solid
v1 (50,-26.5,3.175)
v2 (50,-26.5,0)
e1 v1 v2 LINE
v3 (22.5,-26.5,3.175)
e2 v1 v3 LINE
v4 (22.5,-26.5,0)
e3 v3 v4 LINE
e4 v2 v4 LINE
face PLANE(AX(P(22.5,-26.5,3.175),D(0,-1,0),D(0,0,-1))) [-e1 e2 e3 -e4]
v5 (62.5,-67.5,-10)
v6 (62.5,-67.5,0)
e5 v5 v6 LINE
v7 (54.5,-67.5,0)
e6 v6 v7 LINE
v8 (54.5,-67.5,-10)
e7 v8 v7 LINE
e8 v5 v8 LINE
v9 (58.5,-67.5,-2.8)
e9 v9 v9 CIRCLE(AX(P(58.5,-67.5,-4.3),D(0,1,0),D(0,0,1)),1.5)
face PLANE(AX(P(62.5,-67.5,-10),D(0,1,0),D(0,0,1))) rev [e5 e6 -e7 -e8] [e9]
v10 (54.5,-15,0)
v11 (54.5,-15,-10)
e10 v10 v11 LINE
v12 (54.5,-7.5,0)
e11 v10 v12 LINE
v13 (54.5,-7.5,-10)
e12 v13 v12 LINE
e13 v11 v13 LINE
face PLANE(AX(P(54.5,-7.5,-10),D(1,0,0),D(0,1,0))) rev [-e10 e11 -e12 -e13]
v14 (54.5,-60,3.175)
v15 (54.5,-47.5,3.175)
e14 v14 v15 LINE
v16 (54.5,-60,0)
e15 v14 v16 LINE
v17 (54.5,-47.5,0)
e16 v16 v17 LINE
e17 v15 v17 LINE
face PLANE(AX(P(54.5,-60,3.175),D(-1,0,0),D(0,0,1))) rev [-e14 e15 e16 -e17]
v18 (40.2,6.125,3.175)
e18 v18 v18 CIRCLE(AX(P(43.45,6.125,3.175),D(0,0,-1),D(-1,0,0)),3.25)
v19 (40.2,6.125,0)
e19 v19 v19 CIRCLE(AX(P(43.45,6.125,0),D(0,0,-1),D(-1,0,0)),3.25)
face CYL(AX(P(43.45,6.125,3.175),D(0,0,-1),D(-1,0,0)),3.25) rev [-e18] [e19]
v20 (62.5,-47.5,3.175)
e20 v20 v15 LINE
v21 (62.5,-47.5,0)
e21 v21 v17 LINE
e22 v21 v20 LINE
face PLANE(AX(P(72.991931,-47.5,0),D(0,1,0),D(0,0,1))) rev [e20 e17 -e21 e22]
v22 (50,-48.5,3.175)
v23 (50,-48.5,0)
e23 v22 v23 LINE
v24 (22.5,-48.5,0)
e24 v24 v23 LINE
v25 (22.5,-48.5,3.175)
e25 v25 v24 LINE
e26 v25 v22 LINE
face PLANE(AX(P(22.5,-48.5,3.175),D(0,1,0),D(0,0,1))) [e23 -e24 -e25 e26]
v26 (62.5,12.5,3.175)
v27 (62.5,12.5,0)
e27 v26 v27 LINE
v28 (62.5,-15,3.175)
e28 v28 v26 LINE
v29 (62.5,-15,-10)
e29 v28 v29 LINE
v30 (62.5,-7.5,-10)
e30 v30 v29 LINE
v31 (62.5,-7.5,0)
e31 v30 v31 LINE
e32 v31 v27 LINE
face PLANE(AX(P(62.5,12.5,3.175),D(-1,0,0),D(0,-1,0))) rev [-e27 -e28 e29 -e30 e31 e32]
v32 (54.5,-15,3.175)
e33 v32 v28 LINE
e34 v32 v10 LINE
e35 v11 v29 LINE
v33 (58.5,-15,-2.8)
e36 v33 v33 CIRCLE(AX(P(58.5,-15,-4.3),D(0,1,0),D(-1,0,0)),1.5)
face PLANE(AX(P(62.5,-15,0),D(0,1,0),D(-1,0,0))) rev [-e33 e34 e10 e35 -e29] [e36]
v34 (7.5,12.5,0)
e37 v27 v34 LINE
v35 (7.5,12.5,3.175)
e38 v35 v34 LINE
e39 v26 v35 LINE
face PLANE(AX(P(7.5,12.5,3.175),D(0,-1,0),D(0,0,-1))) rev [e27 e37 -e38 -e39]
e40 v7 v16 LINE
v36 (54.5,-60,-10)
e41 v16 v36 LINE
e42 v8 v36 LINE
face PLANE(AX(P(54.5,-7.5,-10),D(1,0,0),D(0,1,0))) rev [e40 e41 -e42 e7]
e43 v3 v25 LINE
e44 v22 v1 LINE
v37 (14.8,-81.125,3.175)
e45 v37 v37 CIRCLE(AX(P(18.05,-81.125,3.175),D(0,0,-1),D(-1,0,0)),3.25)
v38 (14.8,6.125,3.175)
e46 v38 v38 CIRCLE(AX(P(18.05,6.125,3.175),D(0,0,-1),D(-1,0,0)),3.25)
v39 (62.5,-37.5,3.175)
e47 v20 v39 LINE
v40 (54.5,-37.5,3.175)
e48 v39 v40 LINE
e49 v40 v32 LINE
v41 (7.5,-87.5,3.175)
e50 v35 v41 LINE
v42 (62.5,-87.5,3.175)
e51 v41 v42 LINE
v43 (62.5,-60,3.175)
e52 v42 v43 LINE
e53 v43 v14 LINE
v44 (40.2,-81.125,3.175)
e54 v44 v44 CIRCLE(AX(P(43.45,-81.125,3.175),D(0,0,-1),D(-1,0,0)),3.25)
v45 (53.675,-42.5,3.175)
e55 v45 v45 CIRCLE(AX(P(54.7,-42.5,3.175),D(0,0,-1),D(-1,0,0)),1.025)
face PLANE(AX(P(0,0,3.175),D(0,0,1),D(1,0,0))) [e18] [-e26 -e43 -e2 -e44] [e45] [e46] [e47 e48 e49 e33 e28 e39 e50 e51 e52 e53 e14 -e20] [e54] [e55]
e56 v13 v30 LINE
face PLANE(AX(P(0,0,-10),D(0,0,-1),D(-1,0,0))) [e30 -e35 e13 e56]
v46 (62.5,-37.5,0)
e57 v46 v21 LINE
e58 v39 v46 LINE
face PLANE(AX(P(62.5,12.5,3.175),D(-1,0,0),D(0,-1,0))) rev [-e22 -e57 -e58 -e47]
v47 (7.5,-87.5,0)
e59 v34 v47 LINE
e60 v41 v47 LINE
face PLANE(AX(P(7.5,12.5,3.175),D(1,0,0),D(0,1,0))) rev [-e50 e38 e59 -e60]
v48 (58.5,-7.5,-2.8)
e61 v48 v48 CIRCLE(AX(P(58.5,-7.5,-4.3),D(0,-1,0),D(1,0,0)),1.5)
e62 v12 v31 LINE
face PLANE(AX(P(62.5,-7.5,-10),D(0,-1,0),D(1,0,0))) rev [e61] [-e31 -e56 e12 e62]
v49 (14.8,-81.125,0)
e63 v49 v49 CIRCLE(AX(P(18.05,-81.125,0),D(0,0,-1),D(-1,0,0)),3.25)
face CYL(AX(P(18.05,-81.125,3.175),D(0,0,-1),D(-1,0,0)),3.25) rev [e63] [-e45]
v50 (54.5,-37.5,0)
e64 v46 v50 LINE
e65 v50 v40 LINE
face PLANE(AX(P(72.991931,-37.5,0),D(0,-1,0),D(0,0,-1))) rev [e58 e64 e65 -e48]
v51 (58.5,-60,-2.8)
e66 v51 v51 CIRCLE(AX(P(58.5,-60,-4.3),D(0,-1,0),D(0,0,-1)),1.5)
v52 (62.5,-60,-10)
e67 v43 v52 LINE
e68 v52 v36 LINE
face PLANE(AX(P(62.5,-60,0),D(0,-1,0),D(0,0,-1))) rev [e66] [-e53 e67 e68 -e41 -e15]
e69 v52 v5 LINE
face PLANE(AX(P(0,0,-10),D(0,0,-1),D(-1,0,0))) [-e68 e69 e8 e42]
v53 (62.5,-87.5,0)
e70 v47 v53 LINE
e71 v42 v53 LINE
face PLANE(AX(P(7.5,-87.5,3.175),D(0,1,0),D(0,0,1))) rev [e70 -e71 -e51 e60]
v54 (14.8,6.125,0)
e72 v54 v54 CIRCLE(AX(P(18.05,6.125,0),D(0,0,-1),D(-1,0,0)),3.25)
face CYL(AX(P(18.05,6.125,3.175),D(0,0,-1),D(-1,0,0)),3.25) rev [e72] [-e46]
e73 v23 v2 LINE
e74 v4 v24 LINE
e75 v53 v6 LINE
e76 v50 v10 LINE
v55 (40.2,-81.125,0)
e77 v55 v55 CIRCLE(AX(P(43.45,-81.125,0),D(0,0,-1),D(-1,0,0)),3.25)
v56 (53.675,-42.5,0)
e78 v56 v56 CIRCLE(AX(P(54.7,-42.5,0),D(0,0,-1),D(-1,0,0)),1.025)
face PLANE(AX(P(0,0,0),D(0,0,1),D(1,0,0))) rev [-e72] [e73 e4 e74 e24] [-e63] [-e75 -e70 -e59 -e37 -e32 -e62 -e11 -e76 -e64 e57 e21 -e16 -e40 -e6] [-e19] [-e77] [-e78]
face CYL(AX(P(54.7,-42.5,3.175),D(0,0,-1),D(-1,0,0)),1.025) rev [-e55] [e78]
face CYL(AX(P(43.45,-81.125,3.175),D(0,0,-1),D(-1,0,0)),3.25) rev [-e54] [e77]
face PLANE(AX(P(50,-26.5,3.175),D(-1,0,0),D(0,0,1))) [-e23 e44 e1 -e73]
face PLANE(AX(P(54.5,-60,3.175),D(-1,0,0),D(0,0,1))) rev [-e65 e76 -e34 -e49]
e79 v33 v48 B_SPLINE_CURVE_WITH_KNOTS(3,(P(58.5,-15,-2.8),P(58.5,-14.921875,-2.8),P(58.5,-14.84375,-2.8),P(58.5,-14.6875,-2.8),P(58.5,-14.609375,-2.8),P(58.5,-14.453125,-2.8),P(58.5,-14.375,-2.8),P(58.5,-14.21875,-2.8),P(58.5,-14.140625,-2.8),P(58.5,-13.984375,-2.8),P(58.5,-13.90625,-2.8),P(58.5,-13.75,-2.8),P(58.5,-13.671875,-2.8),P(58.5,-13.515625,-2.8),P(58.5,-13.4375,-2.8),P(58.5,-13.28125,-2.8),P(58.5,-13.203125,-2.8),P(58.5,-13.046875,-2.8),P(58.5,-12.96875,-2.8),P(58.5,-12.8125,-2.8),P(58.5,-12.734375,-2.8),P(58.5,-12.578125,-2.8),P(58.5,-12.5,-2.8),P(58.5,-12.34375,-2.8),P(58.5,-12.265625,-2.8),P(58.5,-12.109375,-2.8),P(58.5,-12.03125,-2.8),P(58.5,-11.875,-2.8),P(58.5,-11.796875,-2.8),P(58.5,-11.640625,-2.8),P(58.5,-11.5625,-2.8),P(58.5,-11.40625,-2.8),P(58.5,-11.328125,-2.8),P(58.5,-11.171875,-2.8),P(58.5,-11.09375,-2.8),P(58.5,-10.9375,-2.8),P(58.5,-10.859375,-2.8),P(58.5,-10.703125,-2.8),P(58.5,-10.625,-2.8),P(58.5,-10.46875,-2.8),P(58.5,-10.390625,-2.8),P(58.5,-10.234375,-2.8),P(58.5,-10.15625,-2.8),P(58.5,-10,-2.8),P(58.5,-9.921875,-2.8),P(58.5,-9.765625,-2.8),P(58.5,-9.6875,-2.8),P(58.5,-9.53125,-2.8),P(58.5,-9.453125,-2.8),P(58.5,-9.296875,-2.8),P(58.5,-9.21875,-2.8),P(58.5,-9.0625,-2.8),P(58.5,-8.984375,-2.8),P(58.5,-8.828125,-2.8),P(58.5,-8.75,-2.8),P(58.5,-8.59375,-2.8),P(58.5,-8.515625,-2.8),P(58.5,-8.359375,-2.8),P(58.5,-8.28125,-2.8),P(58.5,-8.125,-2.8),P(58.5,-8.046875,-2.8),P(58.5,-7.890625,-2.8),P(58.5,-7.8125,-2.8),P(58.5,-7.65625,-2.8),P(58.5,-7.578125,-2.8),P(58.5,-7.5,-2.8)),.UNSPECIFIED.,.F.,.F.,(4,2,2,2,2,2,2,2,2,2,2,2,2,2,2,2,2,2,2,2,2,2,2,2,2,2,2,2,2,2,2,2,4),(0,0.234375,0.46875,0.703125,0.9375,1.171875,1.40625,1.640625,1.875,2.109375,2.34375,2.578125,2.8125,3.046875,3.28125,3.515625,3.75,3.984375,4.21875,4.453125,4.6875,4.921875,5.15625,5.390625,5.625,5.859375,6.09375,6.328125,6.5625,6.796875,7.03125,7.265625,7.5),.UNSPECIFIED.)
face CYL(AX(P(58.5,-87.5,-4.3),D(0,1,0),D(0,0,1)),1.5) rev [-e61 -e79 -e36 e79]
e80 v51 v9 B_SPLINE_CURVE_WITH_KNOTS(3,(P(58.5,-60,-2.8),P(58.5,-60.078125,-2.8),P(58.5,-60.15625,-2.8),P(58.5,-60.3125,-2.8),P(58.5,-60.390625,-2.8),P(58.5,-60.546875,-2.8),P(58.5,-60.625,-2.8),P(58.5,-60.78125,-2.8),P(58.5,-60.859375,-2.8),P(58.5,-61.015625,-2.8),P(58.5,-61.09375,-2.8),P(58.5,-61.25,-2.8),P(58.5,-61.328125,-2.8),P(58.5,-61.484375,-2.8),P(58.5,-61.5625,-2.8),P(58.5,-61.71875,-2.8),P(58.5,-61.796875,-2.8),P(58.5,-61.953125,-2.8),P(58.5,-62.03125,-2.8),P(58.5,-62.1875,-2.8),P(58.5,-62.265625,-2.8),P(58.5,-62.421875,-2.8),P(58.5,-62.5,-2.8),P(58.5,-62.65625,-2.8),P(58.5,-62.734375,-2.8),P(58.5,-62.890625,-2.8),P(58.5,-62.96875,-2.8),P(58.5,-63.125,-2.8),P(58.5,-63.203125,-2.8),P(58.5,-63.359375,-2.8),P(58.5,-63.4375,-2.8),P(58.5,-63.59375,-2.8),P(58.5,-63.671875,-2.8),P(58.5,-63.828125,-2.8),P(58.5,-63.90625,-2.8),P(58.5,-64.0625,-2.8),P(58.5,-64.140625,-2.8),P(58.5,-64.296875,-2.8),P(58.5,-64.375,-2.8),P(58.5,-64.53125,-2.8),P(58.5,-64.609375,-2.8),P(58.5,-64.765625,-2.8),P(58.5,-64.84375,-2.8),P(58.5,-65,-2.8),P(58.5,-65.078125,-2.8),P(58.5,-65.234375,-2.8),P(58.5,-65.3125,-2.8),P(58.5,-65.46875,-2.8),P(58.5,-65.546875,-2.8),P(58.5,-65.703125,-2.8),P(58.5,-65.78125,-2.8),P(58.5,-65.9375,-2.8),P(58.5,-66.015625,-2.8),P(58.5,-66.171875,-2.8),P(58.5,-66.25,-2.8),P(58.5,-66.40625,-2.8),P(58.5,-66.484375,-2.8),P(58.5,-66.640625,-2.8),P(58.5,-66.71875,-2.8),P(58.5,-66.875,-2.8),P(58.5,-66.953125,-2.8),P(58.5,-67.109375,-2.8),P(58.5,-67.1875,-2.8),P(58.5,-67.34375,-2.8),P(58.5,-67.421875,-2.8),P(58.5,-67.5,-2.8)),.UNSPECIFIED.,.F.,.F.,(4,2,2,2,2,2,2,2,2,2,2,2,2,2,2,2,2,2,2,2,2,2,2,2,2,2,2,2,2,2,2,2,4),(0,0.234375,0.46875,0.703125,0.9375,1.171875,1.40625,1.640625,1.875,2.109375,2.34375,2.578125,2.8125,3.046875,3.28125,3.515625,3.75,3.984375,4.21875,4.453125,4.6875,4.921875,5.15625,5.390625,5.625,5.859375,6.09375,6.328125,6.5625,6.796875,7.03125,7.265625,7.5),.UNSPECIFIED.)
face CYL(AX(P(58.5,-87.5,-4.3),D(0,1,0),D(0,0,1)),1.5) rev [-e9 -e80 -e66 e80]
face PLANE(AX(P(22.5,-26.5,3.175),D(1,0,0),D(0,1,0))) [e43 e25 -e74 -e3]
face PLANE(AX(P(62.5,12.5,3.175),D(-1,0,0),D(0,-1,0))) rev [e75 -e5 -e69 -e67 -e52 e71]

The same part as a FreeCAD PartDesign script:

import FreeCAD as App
import Part
import Sketcher

V = App.Vector

doc = App.newDocument("Part")
body = doc.addObject("PartDesign::Body", "Body")

# Sketch on XY plane
sketch1 = body.newObject("Sketcher::SketchObject", "Sketch")
sketch1.AttachmentSupport = (doc.getObject("XY_Plane"), [""])
sketch1.MapMode = "FlatFace"
sketch1.addGeometry(Part.LineSegment(V(7.5, 12.5, 0), V(7.5, -87.5, 0)), False)
sketch1.addGeometry(Part.LineSegment(V(7.5, -87.5, 0), V(62.5, -87.5, 0)), False)
sketch1.addGeometry(Part.LineSegment(V(62.5, -87.5, 0), V(62.5, 12.5, 0)), False)
sketch1.addGeometry(Part.LineSegment(V(62.5, 12.5, 0), V(7.5, 12.5, 0)), False)
sketch1.addGeometry(Part.LineSegment(V(50, -48.5, 0), V(22.5, -48.5, 0)), False)
sketch1.addGeometry(Part.LineSegment(V(22.5, -48.5, 0), V(22.5, -26.5, 0)), False)
sketch1.addGeometry(Part.LineSegment(V(22.5, -26.5, 0), V(50, -26.5, 0)), False)
sketch1.addGeometry(Part.LineSegment(V(50, -26.5, 0), V(50, -48.5, 0)), False)
sketch1.addConstraint(Sketcher.Constraint("Coincident", 0, 2, 1, 1))
sketch1.addConstraint(Sketcher.Constraint("Coincident", 1, 2, 2, 1))
sketch1.addConstraint(Sketcher.Constraint("Coincident", 2, 2, 3, 1))
sketch1.addConstraint(Sketcher.Constraint("Coincident", 3, 2, 0, 1))
sketch1.addConstraint(Sketcher.Constraint("Coincident", 4, 2, 5, 1))
sketch1.addConstraint(Sketcher.Constraint("Coincident", 5, 2, 6, 1))
sketch1.addConstraint(Sketcher.Constraint("Coincident", 6, 2, 7, 1))
sketch1.addConstraint(Sketcher.Constraint("Coincident", 7, 2, 4, 1))
sketch1.addConstraint(Sketcher.Constraint("Vertical", 0))
sketch1.addConstraint(Sketcher.Constraint("Horizontal", 1))
sketch1.addConstraint(Sketcher.Constraint("Vertical", 2))
sketch1.addConstraint(Sketcher.Constraint("Horizontal", 3))
sketch1.addConstraint(Sketcher.Constraint("Horizontal", 4))
sketch1.addConstraint(Sketcher.Constraint("Vertical", 5))
sketch1.addConstraint(Sketcher.Constraint("Horizontal", 6))
sketch1.addConstraint(Sketcher.Constraint("Vertical", 7))
sketch1.addConstraint(Sketcher.Constraint("DistanceX", 1, 1, 1, 2, 55.0))
sketch1.addConstraint(Sketcher.Constraint("DistanceY", 0, 2, 0, 1, 100.0))
sketch1.addConstraint(Sketcher.Constraint("DistanceY", 5, 1, 5, 2, 22.0))
sketch1.addConstraint(Sketcher.Constraint("DistanceX", 4, 2, 4, 1, 27.5))
sketch1.addConstraint(Sketcher.Constraint("DistanceX", -1, 1, 6, 2, 50.0))
sketch1.addConstraint(Sketcher.Constraint("DistanceX", 0, 2, 4, 2, 15.0))
sketch1.addConstraint(Sketcher.Constraint("DistanceY", 0, 2, 4, 2, 39.0))
sketch1.addConstraint(Sketcher.Constraint("DistanceY", 0, 2, -1, 1, 87.5))
pad1 = body.newObject("PartDesign::Pad", "Pad")
pad1.Profile = sketch1
pad1.Length = 3.175

# Sketch on XY plane
sketch2 = body.newObject("Sketcher::SketchObject", "Sketch001")
sketch2.AttachmentSupport = (doc.getObject("XY_Plane"), [""])
sketch2.MapMode = "FlatFace"
sketch2.addGeometry(Part.LineSegment(V(62.5, -7.5, 0), V(62.5, -67.5, 0)), False)
sketch2.addGeometry(Part.LineSegment(V(62.5, -67.5, 0), V(54.5, -67.5, 0)), False)
sketch2.addGeometry(Part.LineSegment(V(54.5, -67.5, 0), V(54.5, -7.5, 0)), False)
sketch2.addGeometry(Part.LineSegment(V(54.5, -7.5, 0), V(62.5, -7.5, 0)), False)
sketch2.addConstraint(Sketcher.Constraint("Coincident", 0, 2, 1, 1))
sketch2.addConstraint(Sketcher.Constraint("Coincident", 1, 2, 2, 1))
sketch2.addConstraint(Sketcher.Constraint("Coincident", 2, 2, 3, 1))
sketch2.addConstraint(Sketcher.Constraint("Coincident", 3, 2, 0, 1))
sketch2.addConstraint(Sketcher.Constraint("Vertical", 0))
sketch2.addConstraint(Sketcher.Constraint("Horizontal", 1))
sketch2.addConstraint(Sketcher.Constraint("Vertical", 2))
sketch2.addConstraint(Sketcher.Constraint("Horizontal", 3))
sketch2.addConstraint(Sketcher.Constraint("DistanceX", 1, 2, 1, 1, 8.0))
sketch2.addConstraint(Sketcher.Constraint("DistanceY", 0, 2, 0, 1, 60.0))
sketch2.addConstraint(Sketcher.Constraint("DistanceX", -1, 1, 0, 2, 62.5))
sketch2.addConstraint(Sketcher.Constraint("DistanceY", 0, 2, -1, 1, 67.5))
pad2 = body.newObject("PartDesign::Pad", "Pad001")
pad2.Profile = sketch2
pad2.Length = 10
pad2.Reversed = True

# Sketch on XY plane
sketch3 = body.newObject("Sketcher::SketchObject", "Sketch002")
sketch3.AttachmentSupport = (doc.getObject("XY_Plane"), [""])
sketch3.MapMode = "FlatFace"
sketch3.AttachmentOffset = App.Placement(V(0, 0, -10), App.Rotation())
sketch3.addGeometry(Part.LineSegment(V(62.5, -15, 0), V(62.5, -60, 0)), False)
sketch3.addGeometry(Part.LineSegment(V(62.5, -60, 0), V(54.5, -60, 0)), False)
sketch3.addGeometry(Part.LineSegment(V(54.5, -60, 0), V(54.5, -15, 0)), False)
sketch3.addGeometry(Part.LineSegment(V(54.5, -15, 0), V(62.5, -15, 0)), False)
sketch3.addConstraint(Sketcher.Constraint("Coincident", 0, 2, 1, 1))
sketch3.addConstraint(Sketcher.Constraint("Coincident", 1, 2, 2, 1))
sketch3.addConstraint(Sketcher.Constraint("Coincident", 2, 2, 3, 1))
sketch3.addConstraint(Sketcher.Constraint("Coincident", 3, 2, 0, 1))
sketch3.addConstraint(Sketcher.Constraint("Vertical", 0))
sketch3.addConstraint(Sketcher.Constraint("Horizontal", 1))
sketch3.addConstraint(Sketcher.Constraint("Vertical", 2))
sketch3.addConstraint(Sketcher.Constraint("Horizontal", 3))
sketch3.addConstraint(Sketcher.Constraint("DistanceX", 1, 2, 1, 1, 8.0))
sketch3.addConstraint(Sketcher.Constraint("DistanceY", 0, 2, 0, 1, 45.0))
sketch3.addConstraint(Sketcher.Constraint("DistanceY", 0, 2, -1, 1, 60.0))
sketch3.addConstraint(Sketcher.Constraint("DistanceX", -1, 1, 0, 2, 62.5))
pocket1 = body.newObject("PartDesign::Pocket", "Pocket")
pocket1.Profile = sketch3
pocket1.Length = 10
pocket1.Reversed = True

# Sketch on XZ plane
sketch4 = body.newObject("Sketcher::SketchObject", "Sketch003")
sketch4.AttachmentSupport = (doc.getObject("XZ_Plane"), [""])
sketch4.MapMode = "FlatFace"
sketch4.AttachmentOffset = App.Placement(V(0, 0, -12.5), App.Rotation())
sketch4.addGeometry(Part.Circle(V(58.5, -4.3, 0), V(0, 0, 1), 1.5), False)
sketch4.addConstraint(Sketcher.Constraint("Diameter", 0, 3.0))
sketch4.addConstraint(Sketcher.Constraint("DistanceX", -1, 1, 0, 3, 58.5))
sketch4.addConstraint(Sketcher.Constraint("DistanceY", 0, 3, -1, 1, 4.3))
pocket2 = body.newObject("PartDesign::Pocket", "Pocket001")
pocket2.Profile = sketch4
pocket2.Type = "ThroughAll"
pocket2.Reversed = True

# Sketch on XY plane
sketch5 = body.newObject("Sketcher::SketchObject", "Sketch004")
sketch5.AttachmentSupport = (doc.getObject("XY_Plane"), [""])
sketch5.MapMode = "FlatFace"
sketch5.addGeometry(Part.Circle(V(43.45, -81.125, 0), V(0, 0, 1), 3.25), False)
sketch5.addGeometry(Part.Circle(V(18.05, -81.125, 0), V(0, 0, 1), 3.25), False)
sketch5.addGeometry(Part.Circle(V(18.05, 6.125, 0), V(0, 0, 1), 3.25), False)
sketch5.addGeometry(Part.Circle(V(43.45, 6.125, 0), V(0, 0, 1), 3.25), False)
sketch5.addConstraint(Sketcher.Constraint("Equal", 0, 1))
sketch5.addConstraint(Sketcher.Constraint("Equal", 1, 2))
sketch5.addConstraint(Sketcher.Constraint("Equal", 2, 3))
sketch5.addConstraint(Sketcher.Constraint("Horizontal", 0, 3, 1, 3))
sketch5.addConstraint(Sketcher.Constraint("Horizontal", 2, 3, 3, 3))
sketch5.addConstraint(Sketcher.Constraint("Vertical", 1, 3, 2, 3))
sketch5.addConstraint(Sketcher.Constraint("Vertical", 0, 3, 3, 3))
sketch5.addConstraint(Sketcher.Constraint("Diameter", 0, 6.5))
sketch5.addConstraint(Sketcher.Constraint("DistanceX", 1, 3, 0, 3, 25.4))
sketch5.addConstraint(Sketcher.Constraint("DistanceX", -1, 1, 0, 3, 43.45))
sketch5.addConstraint(Sketcher.Constraint("DistanceY", 1, 3, 2, 3, 87.25))
sketch5.addConstraint(Sketcher.Constraint("DistanceY", 0, 3, -1, 1, 81.125))
pocket3 = body.newObject("PartDesign::Pocket", "Pocket002")
pocket3.Profile = sketch5
pocket3.Type = "ThroughAll"
pocket3.Reversed = True

# Sketch on XY plane
sketch6 = body.newObject("Sketcher::SketchObject", "Sketch005")
sketch6.AttachmentSupport = (doc.getObject("XY_Plane"), [""])
sketch6.MapMode = "FlatFace"
sketch6.addGeometry(Part.LineSegment(V(62.5, -15, 0), V(62.5, -60, 0)), False)
sketch6.addGeometry(Part.LineSegment(V(62.5, -60, 0), V(54.5, -60, 0)), False)
sketch6.addGeometry(Part.LineSegment(V(54.5, -60, 0), V(54.5, -15, 0)), False)
sketch6.addGeometry(Part.LineSegment(V(54.5, -15, 0), V(62.5, -15, 0)), False)
sketch6.addConstraint(Sketcher.Constraint("Coincident", 0, 2, 1, 1))
sketch6.addConstraint(Sketcher.Constraint("Coincident", 1, 2, 2, 1))
sketch6.addConstraint(Sketcher.Constraint("Coincident", 2, 2, 3, 1))
sketch6.addConstraint(Sketcher.Constraint("Coincident", 3, 2, 0, 1))
sketch6.addConstraint(Sketcher.Constraint("Vertical", 0))
sketch6.addConstraint(Sketcher.Constraint("Horizontal", 1))
sketch6.addConstraint(Sketcher.Constraint("Vertical", 2))
sketch6.addConstraint(Sketcher.Constraint("Horizontal", 3))
sketch6.addConstraint(Sketcher.Constraint("DistanceX", 1, 2, 1, 1, 8.0))
sketch6.addConstraint(Sketcher.Constraint("DistanceY", 0, 2, 0, 1, 45.0))
sketch6.addConstraint(Sketcher.Constraint("DistanceY", 0, 2, -1, 1, 60.0))
sketch6.addConstraint(Sketcher.Constraint("DistanceX", -1, 1, 0, 2, 62.5))
pocket4 = body.newObject("PartDesign::Pocket", "Pocket003")
pocket4.Profile = sketch6
pocket4.Type = "ThroughAll"
pocket4.Reversed = True

# Sketch on YZ plane
sketch7 = body.newObject("Sketcher::SketchObject", "Sketch006")
sketch7.AttachmentSupport = (doc.getObject("YZ_Plane"), [""])
sketch7.MapMode = "FlatFace"
sketch7.AttachmentOffset = App.Placement(V(0, 0, 54.5), App.Rotation())
sketch7.addGeometry(Part.LineSegment(V(-37.5, 3.175, 0), V(-47.5, 3.175, 0)), False)
sketch7.addGeometry(Part.LineSegment(V(-47.5, 3.175, 0), V(-47.5, 0, 0)), False)
sketch7.addGeometry(Part.LineSegment(V(-47.5, 0, 0), V(-37.5, 0, 0)), False)
sketch7.addGeometry(Part.LineSegment(V(-37.5, 0, 0), V(-37.5, 3.175, 0)), False)
sketch7.addConstraint(Sketcher.Constraint("Coincident", 0, 2, 1, 1))
sketch7.addConstraint(Sketcher.Constraint("Coincident", 1, 2, 2, 1))
sketch7.addConstraint(Sketcher.Constraint("Coincident", 2, 2, 3, 1))
sketch7.addConstraint(Sketcher.Constraint("Coincident", 3, 2, 0, 1))
sketch7.addConstraint(Sketcher.Constraint("Horizontal", 0))
sketch7.addConstraint(Sketcher.Constraint("Vertical", 1))
sketch7.addConstraint(Sketcher.Constraint("Horizontal", 2))
sketch7.addConstraint(Sketcher.Constraint("Vertical", 3))
sketch7.addConstraint(Sketcher.Constraint("PointOnObject", 1, 2, -1))
sketch7.addConstraint(Sketcher.Constraint("DistanceX", 0, 2, 0, 1, 10.0))
sketch7.addConstraint(Sketcher.Constraint("DistanceX", 0, 2, -1, 1, 47.5))
sketch7.addConstraint(Sketcher.Constraint("DistanceY", 1, 2, 1, 1, 3.175))
pad3 = body.newObject("PartDesign::Pad", "Pad002")
pad3.Profile = sketch7
pad3.Length = 8

# Sketch on XY plane
sketch8 = body.newObject("Sketcher::SketchObject", "Sketch007")
sketch8.AttachmentSupport = (doc.getObject("XY_Plane"), [""])
sketch8.MapMode = "FlatFace"
sketch8.addGeometry(Part.Circle(V(54.7, -42.5, 0), V(0, 0, 1), 1.025), False)
sketch8.addConstraint(Sketcher.Constraint("Diameter", 0, 2.05))
sketch8.addConstraint(Sketcher.Constraint("DistanceX", -1, 1, 0, 3, 54.7))
sketch8.addConstraint(Sketcher.Constraint("DistanceY", 0, 3, -1, 1, 42.5))
pocket5 = body.newObject("PartDesign::Pocket", "Pocket004")
pocket5.Profile = sketch8
pocket5.Type = "ThroughAll"
pocket5.Reversed = True

doc.recompute()
